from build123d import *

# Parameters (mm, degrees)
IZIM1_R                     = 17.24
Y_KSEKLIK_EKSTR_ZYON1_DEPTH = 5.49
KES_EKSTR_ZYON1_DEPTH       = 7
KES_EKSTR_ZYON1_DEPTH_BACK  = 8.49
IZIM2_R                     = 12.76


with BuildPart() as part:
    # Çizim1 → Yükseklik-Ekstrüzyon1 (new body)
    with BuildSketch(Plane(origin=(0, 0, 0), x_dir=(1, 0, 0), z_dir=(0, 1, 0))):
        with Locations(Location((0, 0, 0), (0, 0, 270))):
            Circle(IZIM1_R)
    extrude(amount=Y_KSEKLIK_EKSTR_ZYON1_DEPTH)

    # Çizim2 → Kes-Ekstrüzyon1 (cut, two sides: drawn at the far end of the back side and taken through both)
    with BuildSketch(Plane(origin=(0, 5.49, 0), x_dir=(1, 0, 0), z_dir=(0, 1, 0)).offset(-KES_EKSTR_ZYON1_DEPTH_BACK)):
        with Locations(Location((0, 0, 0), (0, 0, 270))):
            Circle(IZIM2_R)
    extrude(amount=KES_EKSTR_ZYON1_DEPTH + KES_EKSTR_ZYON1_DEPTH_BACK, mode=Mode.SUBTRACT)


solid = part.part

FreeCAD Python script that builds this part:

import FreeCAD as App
import Part
import Sketcher

doc = App.newDocument("Part")
body = doc.addObject("PartDesign::Body", "Body")

# Sketch on XZ plane
sketch1 = doc.addObject("Sketcher::SketchObject", "Sketch")
body.addObject(sketch1)
sketch1.AttachmentSupport = (doc.XZ_Plane, [""])
sketch1.MapMode = "FlatFace"
sketch1.addGeometry(Part.Circle(App.Vector(0, 0, 0), App.Vector(0, 0, 1), 17.24), False)
sketch1.addConstraint([
    Sketcher.Constraint("Coincident", 0, 3, -1, 1),
    Sketcher.Constraint("Diameter", 0, 34.48),
])
pad1 = doc.addObject("PartDesign::Pad", "Pad")
body.addObject(pad1)
pad1.Profile = sketch1
pad1.Length = 5.49
pad1.Reversed = True

# Sketch on XZ plane
sketch2 = doc.addObject("Sketcher::SketchObject", "Sketch001")
body.addObject(sketch2)
sketch2.AttachmentSupport = (doc.XZ_Plane, [""])
sketch2.MapMode = "FlatFace"
sketch2.AttachmentOffset = App.Placement(App.Vector(0, 0, -5.49), App.Rotation())
sketch2.addGeometry(Part.Circle(App.Vector(0, 0, 0), App.Vector(0, 0, 1), 12.76), False)
sketch2.addConstraint([
    Sketcher.Constraint("Coincident", 0, 3, -1, 1),
    Sketcher.Constraint("Diameter", 0, 25.52),
])
pocket1 = doc.addObject("PartDesign::Pocket", "Pocket")
body.addObject(pocket1)
pocket1.Profile = sketch2
pocket1.Type = "ThroughAll"
pocket1.Midplane = True

doc.recompute()
